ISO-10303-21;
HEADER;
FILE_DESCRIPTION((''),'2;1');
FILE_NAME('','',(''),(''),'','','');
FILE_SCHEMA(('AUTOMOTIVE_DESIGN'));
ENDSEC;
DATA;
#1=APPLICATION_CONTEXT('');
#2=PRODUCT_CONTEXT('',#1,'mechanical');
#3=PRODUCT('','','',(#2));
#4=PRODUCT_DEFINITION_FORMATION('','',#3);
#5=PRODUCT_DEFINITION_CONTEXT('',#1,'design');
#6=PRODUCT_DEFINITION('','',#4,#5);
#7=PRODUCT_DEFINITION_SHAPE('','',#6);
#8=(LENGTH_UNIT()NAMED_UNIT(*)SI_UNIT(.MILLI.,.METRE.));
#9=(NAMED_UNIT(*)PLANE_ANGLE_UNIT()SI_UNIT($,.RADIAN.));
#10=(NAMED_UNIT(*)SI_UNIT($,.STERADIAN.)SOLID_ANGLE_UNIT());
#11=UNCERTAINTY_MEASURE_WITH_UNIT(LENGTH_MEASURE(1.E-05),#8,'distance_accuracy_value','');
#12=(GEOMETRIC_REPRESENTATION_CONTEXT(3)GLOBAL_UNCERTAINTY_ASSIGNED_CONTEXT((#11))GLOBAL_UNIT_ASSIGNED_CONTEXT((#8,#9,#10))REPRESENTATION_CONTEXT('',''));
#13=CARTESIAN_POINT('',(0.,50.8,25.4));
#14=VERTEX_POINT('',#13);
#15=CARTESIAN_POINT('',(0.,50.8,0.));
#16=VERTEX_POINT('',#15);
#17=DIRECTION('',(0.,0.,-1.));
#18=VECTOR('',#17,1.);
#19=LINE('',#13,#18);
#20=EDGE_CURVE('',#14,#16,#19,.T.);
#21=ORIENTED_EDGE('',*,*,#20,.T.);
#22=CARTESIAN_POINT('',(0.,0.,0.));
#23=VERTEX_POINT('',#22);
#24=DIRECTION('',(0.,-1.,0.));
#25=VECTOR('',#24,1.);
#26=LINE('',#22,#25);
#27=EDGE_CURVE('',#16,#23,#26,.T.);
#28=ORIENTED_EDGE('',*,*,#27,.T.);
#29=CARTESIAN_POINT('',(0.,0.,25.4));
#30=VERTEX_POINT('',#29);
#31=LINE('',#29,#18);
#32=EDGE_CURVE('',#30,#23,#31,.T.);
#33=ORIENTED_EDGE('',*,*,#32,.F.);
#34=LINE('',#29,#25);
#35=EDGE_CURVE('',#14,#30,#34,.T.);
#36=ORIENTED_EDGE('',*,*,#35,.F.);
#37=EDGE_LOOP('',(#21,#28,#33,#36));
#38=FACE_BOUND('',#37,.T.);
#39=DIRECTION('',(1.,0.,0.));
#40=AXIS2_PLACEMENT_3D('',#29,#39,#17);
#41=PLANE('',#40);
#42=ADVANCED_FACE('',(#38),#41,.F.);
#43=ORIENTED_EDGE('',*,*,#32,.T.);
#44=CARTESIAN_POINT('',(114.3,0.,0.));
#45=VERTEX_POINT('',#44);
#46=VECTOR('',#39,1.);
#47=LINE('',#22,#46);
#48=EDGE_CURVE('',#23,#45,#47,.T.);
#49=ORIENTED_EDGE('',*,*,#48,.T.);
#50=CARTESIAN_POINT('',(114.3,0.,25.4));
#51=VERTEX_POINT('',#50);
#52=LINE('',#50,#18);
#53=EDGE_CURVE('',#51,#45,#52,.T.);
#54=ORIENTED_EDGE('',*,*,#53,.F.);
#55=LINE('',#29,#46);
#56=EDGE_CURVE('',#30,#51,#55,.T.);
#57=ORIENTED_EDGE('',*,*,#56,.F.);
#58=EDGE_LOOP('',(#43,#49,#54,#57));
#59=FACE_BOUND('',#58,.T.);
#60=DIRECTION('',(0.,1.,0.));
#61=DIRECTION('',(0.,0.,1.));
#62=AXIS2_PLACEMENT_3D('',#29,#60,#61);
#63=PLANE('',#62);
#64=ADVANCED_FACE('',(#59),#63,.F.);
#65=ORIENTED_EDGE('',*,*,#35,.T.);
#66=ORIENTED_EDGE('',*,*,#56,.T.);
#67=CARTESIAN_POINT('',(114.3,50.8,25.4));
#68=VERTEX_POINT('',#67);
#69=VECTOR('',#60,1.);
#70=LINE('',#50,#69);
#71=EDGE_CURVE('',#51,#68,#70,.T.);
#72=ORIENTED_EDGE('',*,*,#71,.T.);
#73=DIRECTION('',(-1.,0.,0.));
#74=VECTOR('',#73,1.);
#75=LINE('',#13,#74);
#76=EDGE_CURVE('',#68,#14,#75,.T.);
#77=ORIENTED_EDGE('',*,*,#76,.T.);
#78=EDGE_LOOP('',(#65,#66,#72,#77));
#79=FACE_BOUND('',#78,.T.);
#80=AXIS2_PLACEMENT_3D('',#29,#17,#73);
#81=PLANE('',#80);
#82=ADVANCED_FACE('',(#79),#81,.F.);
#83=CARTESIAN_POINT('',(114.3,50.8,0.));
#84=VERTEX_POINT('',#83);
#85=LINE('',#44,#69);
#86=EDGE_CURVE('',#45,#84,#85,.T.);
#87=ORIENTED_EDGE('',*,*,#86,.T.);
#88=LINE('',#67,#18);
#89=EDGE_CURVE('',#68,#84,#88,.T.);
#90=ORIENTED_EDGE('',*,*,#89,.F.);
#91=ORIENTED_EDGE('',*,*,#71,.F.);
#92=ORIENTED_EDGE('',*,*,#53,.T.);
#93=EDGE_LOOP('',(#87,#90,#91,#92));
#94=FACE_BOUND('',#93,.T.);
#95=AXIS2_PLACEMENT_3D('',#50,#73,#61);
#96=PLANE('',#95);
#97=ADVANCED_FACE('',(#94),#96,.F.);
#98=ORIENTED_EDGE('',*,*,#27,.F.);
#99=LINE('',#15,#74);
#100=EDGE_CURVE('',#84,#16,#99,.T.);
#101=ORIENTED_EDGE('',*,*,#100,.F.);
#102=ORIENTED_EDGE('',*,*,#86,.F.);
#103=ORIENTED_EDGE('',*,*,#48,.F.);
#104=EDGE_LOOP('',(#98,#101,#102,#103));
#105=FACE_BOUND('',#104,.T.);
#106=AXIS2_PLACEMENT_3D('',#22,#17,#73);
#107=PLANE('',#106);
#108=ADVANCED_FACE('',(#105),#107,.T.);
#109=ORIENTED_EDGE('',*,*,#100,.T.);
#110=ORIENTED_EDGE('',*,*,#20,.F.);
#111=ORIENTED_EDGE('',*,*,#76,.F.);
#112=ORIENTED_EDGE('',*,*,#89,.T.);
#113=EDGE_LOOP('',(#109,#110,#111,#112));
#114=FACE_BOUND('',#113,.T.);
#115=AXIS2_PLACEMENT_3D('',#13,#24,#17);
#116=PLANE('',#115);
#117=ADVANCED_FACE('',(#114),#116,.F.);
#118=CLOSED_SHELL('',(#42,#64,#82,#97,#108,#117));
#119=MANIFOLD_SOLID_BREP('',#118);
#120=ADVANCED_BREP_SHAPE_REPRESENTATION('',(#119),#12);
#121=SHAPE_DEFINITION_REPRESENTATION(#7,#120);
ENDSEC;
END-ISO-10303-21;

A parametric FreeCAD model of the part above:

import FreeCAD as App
import Part
import Sketcher

V = App.Vector
Q = App.Units.Quantity

doc = App.newDocument("Part")
body = doc.addObject("PartDesign::Body", "Body")

sketch1 = body.newObject("Sketcher::SketchObject", "Sketch")
sketch1.AttachmentSupport = (doc.getObject("XY_Plane"), [""])
sketch1.MapMode = "FlatFace"
sketch1.addGeometry(Part.LineSegment(V(0, 51, 0), V(0, 0, 0)), False)
sketch1.addGeometry(Part.LineSegment(V(0, 0, 0), V(114, 0, 0)), False)
sketch1.addGeometry(Part.LineSegment(V(114, 0, 0), V(114, 51, 0)), False)
sketch1.addGeometry(Part.LineSegment(V(114, 51, 0), V(0, 51, 0)), False)
sketch1.addConstraint(Sketcher.Constraint("Coincident", 0, 2, 1, 1))
sketch1.addConstraint(Sketcher.Constraint("Coincident", 1, 2, 2, 1))
sketch1.addConstraint(Sketcher.Constraint("Coincident", 2, 2, 3, 1))
sketch1.addConstraint(Sketcher.Constraint("Coincident", 3, 2, 0, 1))
sketch1.addConstraint(Sketcher.Constraint("Vertical", 0))
sketch1.addConstraint(Sketcher.Constraint("Horizontal", 1))
sketch1.addConstraint(Sketcher.Constraint("Vertical", 2))
sketch1.addConstraint(Sketcher.Constraint("Horizontal", 3))
sketch1.addConstraint(Sketcher.Constraint("Coincident", 0, 2, -1, 1))
sketch1.addConstraint(Sketcher.Constraint("DistanceY", 0, 2, 0, 1, Q("2 in")))
sketch1.addConstraint(Sketcher.Constraint("DistanceX", 1, 1, 1, 2, Q("4.5 in")))
pad1 = body.newObject("PartDesign::Pad", "Pad")
pad1.Profile = sketch1
pad1.Length = Q("1 in")

doc.recompute()
